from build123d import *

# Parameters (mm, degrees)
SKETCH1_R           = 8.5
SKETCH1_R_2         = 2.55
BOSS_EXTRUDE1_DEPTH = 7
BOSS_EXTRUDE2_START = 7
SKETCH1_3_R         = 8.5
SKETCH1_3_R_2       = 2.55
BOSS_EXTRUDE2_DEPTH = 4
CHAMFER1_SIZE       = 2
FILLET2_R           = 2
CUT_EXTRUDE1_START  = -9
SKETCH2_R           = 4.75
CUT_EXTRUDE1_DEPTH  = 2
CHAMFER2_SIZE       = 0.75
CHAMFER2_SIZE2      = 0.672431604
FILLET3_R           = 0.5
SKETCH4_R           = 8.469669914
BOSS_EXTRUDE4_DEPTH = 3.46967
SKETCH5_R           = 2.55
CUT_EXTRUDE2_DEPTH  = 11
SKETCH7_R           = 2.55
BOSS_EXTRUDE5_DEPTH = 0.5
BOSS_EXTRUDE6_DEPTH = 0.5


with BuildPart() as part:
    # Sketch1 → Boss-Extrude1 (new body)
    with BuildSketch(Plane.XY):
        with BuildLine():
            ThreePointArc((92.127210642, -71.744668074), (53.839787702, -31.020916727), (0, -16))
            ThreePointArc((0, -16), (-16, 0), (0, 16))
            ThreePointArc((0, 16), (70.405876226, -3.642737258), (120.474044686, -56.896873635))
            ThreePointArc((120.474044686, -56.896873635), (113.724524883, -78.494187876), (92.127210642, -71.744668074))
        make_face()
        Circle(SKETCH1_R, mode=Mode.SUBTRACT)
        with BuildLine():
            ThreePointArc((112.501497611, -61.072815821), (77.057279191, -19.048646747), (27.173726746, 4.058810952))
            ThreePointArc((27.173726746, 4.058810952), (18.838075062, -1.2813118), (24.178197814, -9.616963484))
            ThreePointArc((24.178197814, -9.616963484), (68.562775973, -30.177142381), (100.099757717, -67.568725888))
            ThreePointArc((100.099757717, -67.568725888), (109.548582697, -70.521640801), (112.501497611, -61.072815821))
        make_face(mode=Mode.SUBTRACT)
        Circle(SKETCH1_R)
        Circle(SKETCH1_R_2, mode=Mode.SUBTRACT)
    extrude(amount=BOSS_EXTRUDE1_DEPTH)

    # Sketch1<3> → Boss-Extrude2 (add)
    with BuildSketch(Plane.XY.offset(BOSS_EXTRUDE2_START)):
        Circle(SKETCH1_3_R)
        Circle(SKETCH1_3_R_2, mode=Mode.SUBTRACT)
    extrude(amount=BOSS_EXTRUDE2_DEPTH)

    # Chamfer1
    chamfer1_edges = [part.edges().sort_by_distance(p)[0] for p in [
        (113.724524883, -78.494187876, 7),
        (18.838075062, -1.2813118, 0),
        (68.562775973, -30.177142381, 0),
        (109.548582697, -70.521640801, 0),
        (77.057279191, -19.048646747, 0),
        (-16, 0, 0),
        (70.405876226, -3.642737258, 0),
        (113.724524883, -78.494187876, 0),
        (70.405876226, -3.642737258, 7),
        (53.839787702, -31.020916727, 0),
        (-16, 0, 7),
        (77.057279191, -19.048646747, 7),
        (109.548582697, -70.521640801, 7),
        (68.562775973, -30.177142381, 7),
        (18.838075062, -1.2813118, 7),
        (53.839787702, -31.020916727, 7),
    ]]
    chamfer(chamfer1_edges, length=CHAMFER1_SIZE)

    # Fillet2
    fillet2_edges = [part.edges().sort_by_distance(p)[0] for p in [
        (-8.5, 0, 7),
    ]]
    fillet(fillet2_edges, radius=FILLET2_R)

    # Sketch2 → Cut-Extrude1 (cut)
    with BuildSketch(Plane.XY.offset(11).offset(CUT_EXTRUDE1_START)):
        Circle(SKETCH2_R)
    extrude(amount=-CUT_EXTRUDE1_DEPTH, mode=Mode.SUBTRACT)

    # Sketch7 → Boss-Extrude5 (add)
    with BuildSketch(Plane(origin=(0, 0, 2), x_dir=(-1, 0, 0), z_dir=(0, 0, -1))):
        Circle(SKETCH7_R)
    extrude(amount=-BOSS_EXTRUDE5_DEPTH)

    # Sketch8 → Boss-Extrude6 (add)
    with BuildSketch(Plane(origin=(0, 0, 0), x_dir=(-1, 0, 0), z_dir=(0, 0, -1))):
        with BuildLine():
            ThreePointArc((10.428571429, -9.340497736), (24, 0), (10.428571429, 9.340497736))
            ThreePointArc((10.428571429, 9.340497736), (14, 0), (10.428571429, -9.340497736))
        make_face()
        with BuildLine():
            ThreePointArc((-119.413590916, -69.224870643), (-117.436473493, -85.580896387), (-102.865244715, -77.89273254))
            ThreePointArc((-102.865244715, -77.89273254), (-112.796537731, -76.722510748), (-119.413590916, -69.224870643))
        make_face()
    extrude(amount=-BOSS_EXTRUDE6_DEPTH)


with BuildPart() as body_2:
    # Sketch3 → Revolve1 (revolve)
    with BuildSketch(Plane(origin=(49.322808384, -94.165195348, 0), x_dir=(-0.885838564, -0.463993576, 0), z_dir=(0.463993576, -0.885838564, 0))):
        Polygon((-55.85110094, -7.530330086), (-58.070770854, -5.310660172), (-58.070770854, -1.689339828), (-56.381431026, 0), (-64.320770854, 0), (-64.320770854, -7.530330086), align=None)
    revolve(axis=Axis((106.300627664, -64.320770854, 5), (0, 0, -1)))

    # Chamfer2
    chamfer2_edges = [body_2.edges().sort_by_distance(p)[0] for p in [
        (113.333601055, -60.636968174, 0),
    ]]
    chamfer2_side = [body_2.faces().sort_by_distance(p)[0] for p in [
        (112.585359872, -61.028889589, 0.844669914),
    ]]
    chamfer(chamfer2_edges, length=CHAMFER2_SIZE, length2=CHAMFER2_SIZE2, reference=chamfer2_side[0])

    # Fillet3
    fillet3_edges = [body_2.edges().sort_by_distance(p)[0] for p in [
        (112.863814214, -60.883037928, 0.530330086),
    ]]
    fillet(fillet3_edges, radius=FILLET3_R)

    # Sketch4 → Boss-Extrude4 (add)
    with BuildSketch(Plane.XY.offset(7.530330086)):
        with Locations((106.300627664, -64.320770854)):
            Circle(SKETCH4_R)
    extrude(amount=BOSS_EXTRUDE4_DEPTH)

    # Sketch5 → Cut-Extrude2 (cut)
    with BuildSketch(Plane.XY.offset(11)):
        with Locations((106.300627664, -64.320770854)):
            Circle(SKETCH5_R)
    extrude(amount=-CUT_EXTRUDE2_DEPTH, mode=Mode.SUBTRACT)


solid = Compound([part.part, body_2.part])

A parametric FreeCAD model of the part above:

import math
import FreeCAD as App
import Part
import Sketcher
from FreeCAD import Vector
Q = App.Units.Quantity


def edges_at(feature, points):
    """Names of the edges that pass closest to the given points."""
    edges = feature.Shape.Edges
    near = lambda p: min(range(len(edges)), key=lambda i: edges[i].distToShape(Part.Vertex(*p))[0])
    return sorted({f"Edge{near(p) + 1}" for p in points})


def add_polygon(sketch, points):
    """Adds a closed chain of lines whose ends are joined by coincident constraints."""
    first, n = sketch.GeometryCount, len(points)
    for a, b in zip(points, points[1:] + points[:1]):
        sketch.addGeometry(Part.LineSegment(App.Vector(*a, 0), App.Vector(*b, 0)), False)
    for i in range(n):
        sketch.addConstraint(Sketcher.Constraint("Coincident", first + i, 2, first + (i + 1) % n, 1))

doc = App.newDocument("Part")
body = doc.addObject("PartDesign::Body", "Body")

sketch1 = body.newObject("Sketcher::SketchObject", "Sketch")
sketch1.AttachmentSupport = (doc.getObject("XY_Plane"), [""])
sketch1.MapMode = "FlatFace"
sketch1.addGeometry([
    Part.ArcOfCircle(Part.Circle(Vector(0, -120, 0), Vector(0, 0, 1), 104), math.radians(28), math.radians(90)),
    Part.ArcOfCircle(Part.Circle(Vector(106.3, -64.3, 0), Vector(0, 0, 1), 16), math.radians(-152), math.radians(28)),
    Part.ArcOfCircle(Part.Circle(Vector(0, -120, 0), Vector(0, 0, 1), 136), math.radians(28), math.radians(90)),
    Part.ArcOfCircle(Part.Circle(Vector(0, 0, 0), Vector(0, 0, 1), 16), math.radians(90), math.radians(270)),
    Part.ArcOfCircle(Part.Circle(Vector(106.3, -64.3, 0), Vector(0, 0, 1), 7), math.radians(-152), math.radians(28)),
    Part.ArcOfCircle(Part.Circle(Vector(0, -120, 0), Vector(0, 0, 1), 113), math.radians(28), math.radians(78)),
    Part.ArcOfCircle(Part.Circle(Vector(25.7, -2.8, 0), Vector(0, 0, 1), 7), math.radians(78), math.radians(258)),
    Part.ArcOfCircle(Part.Circle(Vector(0, -120, 0), Vector(0, 0, 1), 127), math.radians(28), math.radians(78)),
    Part.Circle(Vector(0, 0, 0), Vector(0, 0, 1), 2.5),
], False)
sketch1.addConstraint([
    Sketcher.Constraint("Tangent", 0, 1, 1, 1),
    Sketcher.Constraint("Tangent", 1, 2, 2, 1),
    Sketcher.Constraint("Tangent", 2, 2, 3, 1),
    Sketcher.Constraint("Tangent", 3, 2, 0, 2),
    Sketcher.Constraint("Tangent", 4, 1, 5, 1),
    Sketcher.Constraint("Tangent", 5, 2, 6, 2),
    Sketcher.Constraint("Tangent", 6, 1, 7, 2),
    Sketcher.Constraint("Tangent", 7, 1, 4, 2),
    Sketcher.Constraint("Coincident", 3, 3, -1, 1),
    Sketcher.Constraint("Coincident", 8, 3, -1, 1),
    Sketcher.Constraint("Coincident", 2, 3, 0, 3),
    Sketcher.Constraint("Coincident", 4, 3, 1, 3),
    Sketcher.Constraint("Coincident", 5, 3, 0, 3),
    Sketcher.Constraint("Coincident", 7, 3, 0, 3),
    Sketcher.Constraint("PointOnObject", 0, 3, -2),
    Sketcher.Constraint("Radius", 0, 104.0),
    Sketcher.Constraint("Radius", 1, 16.0),
    Sketcher.Constraint("Radius", 4, 7.0),
    Sketcher.Constraint("Diameter", 8, 5.1),
    Sketcher.Constraint("DistanceY", 1, 3, -1, 1, 64.320771),
    Sketcher.Constraint("DistanceY", -1, 1, 6, 1, 4.058811),
])
pad1 = body.newObject("PartDesign::Pad", "Pad")
pad1.Profile = sketch1
pad1.Length = 7

sketch2 = body.newObject("Sketcher::SketchObject", "Sketch001")
sketch2.AttachmentSupport = (doc.getObject("XY_Plane"), [""])
sketch2.MapMode = "FlatFace"
sketch2.AttachmentOffset = App.Placement(Vector(0, 0, 7), App.Rotation())
sketch2.addGeometry([
    Part.Circle(Vector(0, 0, 0), Vector(0, 0, 1), 8.5),
    Part.Circle(Vector(0, 0, 0), Vector(0, 0, 1), 2.5),
], False)
sketch2.addConstraint([
    Sketcher.Constraint("Coincident", 0, 3, -1, 1),
    Sketcher.Constraint("Coincident", 1, 3, -1, 1),
    Sketcher.Constraint("Diameter", 0, 17.0),
    Sketcher.Constraint("Diameter", 1, 5.1),
])
pad2 = body.newObject("PartDesign::Pad", "Pad001")
pad2.Profile = sketch2
pad2.Length = 4
doc.recompute()

chamfer = body.newObject("PartDesign::Chamfer", "Chamfer")
chamfer.Base = (pad2, edges_at(pad2, [
    (113.725, -78.494, 7),
    (18.838, -1.281, 0),
    (68.563, -30.177, 0),
    (109.549, -70.522, 0),
    (77.057, -19.049, 0),
    (-16, 0, 0),
    (70.406, -3.643, 0),
    (113.725, -78.494, 0),
    (70.406, -3.643, 7),
    (53.84, -31.021, 0),
    (-16, 0, 7),
    (77.057, -19.049, 7),
    (109.549, -70.522, 7),
    (68.563, -30.177, 7),
    (18.838, -1.281, 7),
    (53.84, -31.021, 7),
]))
chamfer.Size = 2
doc.recompute()

fillet = body.newObject("PartDesign::Fillet", "Fillet")
fillet.Base = (chamfer, edges_at(chamfer, [(-8.5, 0, 7)]))
fillet.Radius = 2

sketch3 = body.newObject("Sketcher::SketchObject", "Sketch002")
sketch3.AttachmentSupport = (doc.getObject("XY_Plane"), [""])
sketch3.MapMode = "FlatFace"
sketch3.AttachmentOffset = App.Placement(Vector(0, 0, 2), App.Rotation())
sketch3.addGeometry(Part.Circle(Vector(0, 0, 0), Vector(0, 0, 1), 4.8), False)
sketch3.addConstraint([
    Sketcher.Constraint("Coincident", 0, 3, -1, 1),
    Sketcher.Constraint("Diameter", 0, 9.5),
])
pocket1 = body.newObject("PartDesign::Pocket", "Pocket")
pocket1.Profile = sketch3
pocket1.Length = 2

sketch4 = body.newObject("Sketcher::SketchObject", "Sketch003")
sketch4.AttachmentSupport = (doc.getObject("XY_Plane"), [""])
sketch4.MapMode = "FlatFace"
sketch4.AttachmentOffset = App.Placement(Vector(0, 0, 2), App.Rotation())
sketch4.addGeometry(Part.Circle(Vector(0, 0, 0), Vector(0, 0, 1), 2.5), False)
sketch4.addConstraint([
    Sketcher.Constraint("Coincident", 0, 3, -1, 1),
    Sketcher.Constraint("Diameter", 0, 5.1),
])
pad3 = body.newObject("PartDesign::Pad", "Pad002")
pad3.Profile = sketch4
pad3.Length = 0.5

sketch5 = body.newObject("Sketcher::SketchObject", "Sketch004")
sketch5.AttachmentSupport = (doc.getObject("XY_Plane"), [""])
sketch5.MapMode = "FlatFace"
sketch5.addGeometry([
    Part.ArcOfCircle(Part.Circle(Vector(-14, 0, 0), Vector(0, 0, 1), 10), math.radians(69), math.radians(291)),
    Part.ArcOfCircle(Part.Circle(Vector(0, 0, 0), Vector(0, 0, 1), 14), math.radians(138), math.radians(222)),
    Part.ArcOfCircle(Part.Circle(Vector(113, -77, 0), Vector(0, 0, 1), 10), math.radians(-173), math.radians(49)),
    Part.ArcOfCircle(Part.Circle(Vector(106, -64, 0), Vector(0, 0, 1), 14), math.radians(-104), math.radians(-21)),
], False)
sketch5.addConstraint([
    Sketcher.Constraint("Coincident", 0, 1, 1, 1),
    Sketcher.Constraint("Coincident", 1, 2, 0, 2),
    Sketcher.Constraint("Coincident", 2, 1, 3, 1),
    Sketcher.Constraint("Coincident", 3, 2, 2, 2),
    Sketcher.Constraint("Coincident", 1, 3, -1, 1),
    Sketcher.Constraint("Equal", 0, 2),
    Sketcher.Constraint("Equal", 1, 3),
    Sketcher.Constraint("PointOnObject", 0, 3, -1),
    Sketcher.Constraint("Radius", 0, 10.0),
    Sketcher.Constraint("Radius", 1, 14.0),
    Sketcher.Constraint("DistanceX", 0, 3, -1, 1, 14.0),
    Sketcher.Constraint("DistanceX", 0, 1, 3, 3, 116.729199),
    Sketcher.Constraint("DistanceY", 3, 2, 3, 3, 4.9041),
    Sketcher.Constraint("DistanceY", 2, 3, -1, 1, 76.722511),
    Sketcher.Constraint("DistanceY", 3, 3, -1, 1, 64.320771),
])
pad4 = body.newObject("PartDesign::Pad", "Pad003")
pad4.Profile = sketch5
pad4.Length = 0.5
body2 = doc.addObject("PartDesign::Body", "Body001")

sketch6 = body2.newObject("Sketcher::SketchObject", "Sketch005")
sketch6.Placement = App.Placement(Vector(49.322808, -94.165195, 0), App.Rotation(Vector(-0.885838564, -0.463993576, 0), Vector(0, 0, -1), Vector(0.463993576, -0.885838564, 0), "ZXY"))
add_polygon(sketch6, [(-55.9, -7.5), (-58.1, -5.3), (-58.1, -1.7), (-56.4, 0), (-64.3, 0), (-64.3, -7.5)])
sketch6.addGeometry(Part.LineSegment(Vector(-64.3, -7.5, 0), Vector(-64.3, 0, 0)), True)
sketch6.addConstraint([
    Sketcher.Constraint("Vertical", 1),
    Sketcher.Constraint("Horizontal", 3),
    Sketcher.Constraint("Vertical", 4),
    Sketcher.Constraint("Horizontal", 5),
    Sketcher.Constraint("Vertical", 6),
    Sketcher.Constraint("Coincident", 6, 1, 4, 2),
    Sketcher.Constraint("PointOnObject", 2, 2, -1),
    Sketcher.Constraint("PointOnObject", 6, 2, -1),
    Sketcher.Constraint("Perpendicular", 0, 2),
    Sketcher.Constraint("Angle", 0, Q("135 deg")),
    Sketcher.Constraint("DistanceX", 3, 2, 1, 2, 6.25),
    Sketcher.Constraint("DistanceX", 3, 2, 3, 1, 7.93934),
    Sketcher.Constraint("DistanceX", 5, 1, 5, 2, 8.46967),
    Sketcher.Constraint("DistanceY", 1, 1, 1, 2, 3.62132),
    Sketcher.Constraint("DistanceX", 5, 2, -1, 1, 55.851101),
])
revolution = body2.newObject("PartDesign::Revolution", "Revolution")
revolution.Profile = sketch6
revolution.ReferenceAxis = (sketch6, ["Axis0"])
revolution.Angle = 360
doc.recompute()

chamfer2 = body2.newObject("PartDesign::Chamfer", "Chamfer001")
chamfer2.Base = (revolution, edges_at(revolution, [(113.334, -60.637, 0)]))
chamfer2.ChamferType = "Two distances"
chamfer2.Size = 0.75
chamfer2.Size2 = 0.672432
doc.recompute()

fillet2 = body2.newObject("PartDesign::Fillet", "Fillet001")
fillet2.Base = (chamfer2, edges_at(chamfer2, [(112.864, -60.883, 0.53)]))
fillet2.Radius = 0.5

sketch7 = body2.newObject("Sketcher::SketchObject", "Sketch006")
sketch7.AttachmentSupport = (doc.getObject("XY_Plane001"), [""])
sketch7.MapMode = "FlatFace"
sketch7.AttachmentOffset = App.Placement(Vector(0, 0, 7.53033), App.Rotation())
sketch7.addGeometry(Part.Circle(Vector(106, -64, 0), Vector(0, 0, 1), 8), False)
sketch7.addConstraint([
    Sketcher.Constraint("Diameter", 0, 16.93934),
    Sketcher.Constraint("DistanceY", 0, 3, -1, 1, 64.320771),
    Sketcher.Constraint("DistanceX", -1, 1, 0, 3, 106.300628),
])
pad5 = body2.newObject("PartDesign::Pad", "Pad004")
pad5.Profile = sketch7
pad5.Length = 3.46967

sketch8 = body2.newObject("Sketcher::SketchObject", "Sketch007")
sketch8.AttachmentSupport = (doc.getObject("XY_Plane001"), [""])
sketch8.MapMode = "FlatFace"
sketch8.AttachmentOffset = App.Placement(Vector(0, 0, 11), App.Rotation())
sketch8.addGeometry(Part.Circle(Vector(106.3, -64.3, 0), Vector(0, 0, 1), 2.5), False)
sketch8.addConstraint([
    Sketcher.Constraint("Diameter", 0, 5.1),
    Sketcher.Constraint("DistanceY", 0, 3, -1, 1, 64.320771),
    Sketcher.Constraint("DistanceX", -1, 1, 0, 3, 106.300628),
])
pocket2 = body2.newObject("PartDesign::Pocket", "Pocket001")
pocket2.Profile = sketch8
pocket2.Length = 11

doc.recompute()
